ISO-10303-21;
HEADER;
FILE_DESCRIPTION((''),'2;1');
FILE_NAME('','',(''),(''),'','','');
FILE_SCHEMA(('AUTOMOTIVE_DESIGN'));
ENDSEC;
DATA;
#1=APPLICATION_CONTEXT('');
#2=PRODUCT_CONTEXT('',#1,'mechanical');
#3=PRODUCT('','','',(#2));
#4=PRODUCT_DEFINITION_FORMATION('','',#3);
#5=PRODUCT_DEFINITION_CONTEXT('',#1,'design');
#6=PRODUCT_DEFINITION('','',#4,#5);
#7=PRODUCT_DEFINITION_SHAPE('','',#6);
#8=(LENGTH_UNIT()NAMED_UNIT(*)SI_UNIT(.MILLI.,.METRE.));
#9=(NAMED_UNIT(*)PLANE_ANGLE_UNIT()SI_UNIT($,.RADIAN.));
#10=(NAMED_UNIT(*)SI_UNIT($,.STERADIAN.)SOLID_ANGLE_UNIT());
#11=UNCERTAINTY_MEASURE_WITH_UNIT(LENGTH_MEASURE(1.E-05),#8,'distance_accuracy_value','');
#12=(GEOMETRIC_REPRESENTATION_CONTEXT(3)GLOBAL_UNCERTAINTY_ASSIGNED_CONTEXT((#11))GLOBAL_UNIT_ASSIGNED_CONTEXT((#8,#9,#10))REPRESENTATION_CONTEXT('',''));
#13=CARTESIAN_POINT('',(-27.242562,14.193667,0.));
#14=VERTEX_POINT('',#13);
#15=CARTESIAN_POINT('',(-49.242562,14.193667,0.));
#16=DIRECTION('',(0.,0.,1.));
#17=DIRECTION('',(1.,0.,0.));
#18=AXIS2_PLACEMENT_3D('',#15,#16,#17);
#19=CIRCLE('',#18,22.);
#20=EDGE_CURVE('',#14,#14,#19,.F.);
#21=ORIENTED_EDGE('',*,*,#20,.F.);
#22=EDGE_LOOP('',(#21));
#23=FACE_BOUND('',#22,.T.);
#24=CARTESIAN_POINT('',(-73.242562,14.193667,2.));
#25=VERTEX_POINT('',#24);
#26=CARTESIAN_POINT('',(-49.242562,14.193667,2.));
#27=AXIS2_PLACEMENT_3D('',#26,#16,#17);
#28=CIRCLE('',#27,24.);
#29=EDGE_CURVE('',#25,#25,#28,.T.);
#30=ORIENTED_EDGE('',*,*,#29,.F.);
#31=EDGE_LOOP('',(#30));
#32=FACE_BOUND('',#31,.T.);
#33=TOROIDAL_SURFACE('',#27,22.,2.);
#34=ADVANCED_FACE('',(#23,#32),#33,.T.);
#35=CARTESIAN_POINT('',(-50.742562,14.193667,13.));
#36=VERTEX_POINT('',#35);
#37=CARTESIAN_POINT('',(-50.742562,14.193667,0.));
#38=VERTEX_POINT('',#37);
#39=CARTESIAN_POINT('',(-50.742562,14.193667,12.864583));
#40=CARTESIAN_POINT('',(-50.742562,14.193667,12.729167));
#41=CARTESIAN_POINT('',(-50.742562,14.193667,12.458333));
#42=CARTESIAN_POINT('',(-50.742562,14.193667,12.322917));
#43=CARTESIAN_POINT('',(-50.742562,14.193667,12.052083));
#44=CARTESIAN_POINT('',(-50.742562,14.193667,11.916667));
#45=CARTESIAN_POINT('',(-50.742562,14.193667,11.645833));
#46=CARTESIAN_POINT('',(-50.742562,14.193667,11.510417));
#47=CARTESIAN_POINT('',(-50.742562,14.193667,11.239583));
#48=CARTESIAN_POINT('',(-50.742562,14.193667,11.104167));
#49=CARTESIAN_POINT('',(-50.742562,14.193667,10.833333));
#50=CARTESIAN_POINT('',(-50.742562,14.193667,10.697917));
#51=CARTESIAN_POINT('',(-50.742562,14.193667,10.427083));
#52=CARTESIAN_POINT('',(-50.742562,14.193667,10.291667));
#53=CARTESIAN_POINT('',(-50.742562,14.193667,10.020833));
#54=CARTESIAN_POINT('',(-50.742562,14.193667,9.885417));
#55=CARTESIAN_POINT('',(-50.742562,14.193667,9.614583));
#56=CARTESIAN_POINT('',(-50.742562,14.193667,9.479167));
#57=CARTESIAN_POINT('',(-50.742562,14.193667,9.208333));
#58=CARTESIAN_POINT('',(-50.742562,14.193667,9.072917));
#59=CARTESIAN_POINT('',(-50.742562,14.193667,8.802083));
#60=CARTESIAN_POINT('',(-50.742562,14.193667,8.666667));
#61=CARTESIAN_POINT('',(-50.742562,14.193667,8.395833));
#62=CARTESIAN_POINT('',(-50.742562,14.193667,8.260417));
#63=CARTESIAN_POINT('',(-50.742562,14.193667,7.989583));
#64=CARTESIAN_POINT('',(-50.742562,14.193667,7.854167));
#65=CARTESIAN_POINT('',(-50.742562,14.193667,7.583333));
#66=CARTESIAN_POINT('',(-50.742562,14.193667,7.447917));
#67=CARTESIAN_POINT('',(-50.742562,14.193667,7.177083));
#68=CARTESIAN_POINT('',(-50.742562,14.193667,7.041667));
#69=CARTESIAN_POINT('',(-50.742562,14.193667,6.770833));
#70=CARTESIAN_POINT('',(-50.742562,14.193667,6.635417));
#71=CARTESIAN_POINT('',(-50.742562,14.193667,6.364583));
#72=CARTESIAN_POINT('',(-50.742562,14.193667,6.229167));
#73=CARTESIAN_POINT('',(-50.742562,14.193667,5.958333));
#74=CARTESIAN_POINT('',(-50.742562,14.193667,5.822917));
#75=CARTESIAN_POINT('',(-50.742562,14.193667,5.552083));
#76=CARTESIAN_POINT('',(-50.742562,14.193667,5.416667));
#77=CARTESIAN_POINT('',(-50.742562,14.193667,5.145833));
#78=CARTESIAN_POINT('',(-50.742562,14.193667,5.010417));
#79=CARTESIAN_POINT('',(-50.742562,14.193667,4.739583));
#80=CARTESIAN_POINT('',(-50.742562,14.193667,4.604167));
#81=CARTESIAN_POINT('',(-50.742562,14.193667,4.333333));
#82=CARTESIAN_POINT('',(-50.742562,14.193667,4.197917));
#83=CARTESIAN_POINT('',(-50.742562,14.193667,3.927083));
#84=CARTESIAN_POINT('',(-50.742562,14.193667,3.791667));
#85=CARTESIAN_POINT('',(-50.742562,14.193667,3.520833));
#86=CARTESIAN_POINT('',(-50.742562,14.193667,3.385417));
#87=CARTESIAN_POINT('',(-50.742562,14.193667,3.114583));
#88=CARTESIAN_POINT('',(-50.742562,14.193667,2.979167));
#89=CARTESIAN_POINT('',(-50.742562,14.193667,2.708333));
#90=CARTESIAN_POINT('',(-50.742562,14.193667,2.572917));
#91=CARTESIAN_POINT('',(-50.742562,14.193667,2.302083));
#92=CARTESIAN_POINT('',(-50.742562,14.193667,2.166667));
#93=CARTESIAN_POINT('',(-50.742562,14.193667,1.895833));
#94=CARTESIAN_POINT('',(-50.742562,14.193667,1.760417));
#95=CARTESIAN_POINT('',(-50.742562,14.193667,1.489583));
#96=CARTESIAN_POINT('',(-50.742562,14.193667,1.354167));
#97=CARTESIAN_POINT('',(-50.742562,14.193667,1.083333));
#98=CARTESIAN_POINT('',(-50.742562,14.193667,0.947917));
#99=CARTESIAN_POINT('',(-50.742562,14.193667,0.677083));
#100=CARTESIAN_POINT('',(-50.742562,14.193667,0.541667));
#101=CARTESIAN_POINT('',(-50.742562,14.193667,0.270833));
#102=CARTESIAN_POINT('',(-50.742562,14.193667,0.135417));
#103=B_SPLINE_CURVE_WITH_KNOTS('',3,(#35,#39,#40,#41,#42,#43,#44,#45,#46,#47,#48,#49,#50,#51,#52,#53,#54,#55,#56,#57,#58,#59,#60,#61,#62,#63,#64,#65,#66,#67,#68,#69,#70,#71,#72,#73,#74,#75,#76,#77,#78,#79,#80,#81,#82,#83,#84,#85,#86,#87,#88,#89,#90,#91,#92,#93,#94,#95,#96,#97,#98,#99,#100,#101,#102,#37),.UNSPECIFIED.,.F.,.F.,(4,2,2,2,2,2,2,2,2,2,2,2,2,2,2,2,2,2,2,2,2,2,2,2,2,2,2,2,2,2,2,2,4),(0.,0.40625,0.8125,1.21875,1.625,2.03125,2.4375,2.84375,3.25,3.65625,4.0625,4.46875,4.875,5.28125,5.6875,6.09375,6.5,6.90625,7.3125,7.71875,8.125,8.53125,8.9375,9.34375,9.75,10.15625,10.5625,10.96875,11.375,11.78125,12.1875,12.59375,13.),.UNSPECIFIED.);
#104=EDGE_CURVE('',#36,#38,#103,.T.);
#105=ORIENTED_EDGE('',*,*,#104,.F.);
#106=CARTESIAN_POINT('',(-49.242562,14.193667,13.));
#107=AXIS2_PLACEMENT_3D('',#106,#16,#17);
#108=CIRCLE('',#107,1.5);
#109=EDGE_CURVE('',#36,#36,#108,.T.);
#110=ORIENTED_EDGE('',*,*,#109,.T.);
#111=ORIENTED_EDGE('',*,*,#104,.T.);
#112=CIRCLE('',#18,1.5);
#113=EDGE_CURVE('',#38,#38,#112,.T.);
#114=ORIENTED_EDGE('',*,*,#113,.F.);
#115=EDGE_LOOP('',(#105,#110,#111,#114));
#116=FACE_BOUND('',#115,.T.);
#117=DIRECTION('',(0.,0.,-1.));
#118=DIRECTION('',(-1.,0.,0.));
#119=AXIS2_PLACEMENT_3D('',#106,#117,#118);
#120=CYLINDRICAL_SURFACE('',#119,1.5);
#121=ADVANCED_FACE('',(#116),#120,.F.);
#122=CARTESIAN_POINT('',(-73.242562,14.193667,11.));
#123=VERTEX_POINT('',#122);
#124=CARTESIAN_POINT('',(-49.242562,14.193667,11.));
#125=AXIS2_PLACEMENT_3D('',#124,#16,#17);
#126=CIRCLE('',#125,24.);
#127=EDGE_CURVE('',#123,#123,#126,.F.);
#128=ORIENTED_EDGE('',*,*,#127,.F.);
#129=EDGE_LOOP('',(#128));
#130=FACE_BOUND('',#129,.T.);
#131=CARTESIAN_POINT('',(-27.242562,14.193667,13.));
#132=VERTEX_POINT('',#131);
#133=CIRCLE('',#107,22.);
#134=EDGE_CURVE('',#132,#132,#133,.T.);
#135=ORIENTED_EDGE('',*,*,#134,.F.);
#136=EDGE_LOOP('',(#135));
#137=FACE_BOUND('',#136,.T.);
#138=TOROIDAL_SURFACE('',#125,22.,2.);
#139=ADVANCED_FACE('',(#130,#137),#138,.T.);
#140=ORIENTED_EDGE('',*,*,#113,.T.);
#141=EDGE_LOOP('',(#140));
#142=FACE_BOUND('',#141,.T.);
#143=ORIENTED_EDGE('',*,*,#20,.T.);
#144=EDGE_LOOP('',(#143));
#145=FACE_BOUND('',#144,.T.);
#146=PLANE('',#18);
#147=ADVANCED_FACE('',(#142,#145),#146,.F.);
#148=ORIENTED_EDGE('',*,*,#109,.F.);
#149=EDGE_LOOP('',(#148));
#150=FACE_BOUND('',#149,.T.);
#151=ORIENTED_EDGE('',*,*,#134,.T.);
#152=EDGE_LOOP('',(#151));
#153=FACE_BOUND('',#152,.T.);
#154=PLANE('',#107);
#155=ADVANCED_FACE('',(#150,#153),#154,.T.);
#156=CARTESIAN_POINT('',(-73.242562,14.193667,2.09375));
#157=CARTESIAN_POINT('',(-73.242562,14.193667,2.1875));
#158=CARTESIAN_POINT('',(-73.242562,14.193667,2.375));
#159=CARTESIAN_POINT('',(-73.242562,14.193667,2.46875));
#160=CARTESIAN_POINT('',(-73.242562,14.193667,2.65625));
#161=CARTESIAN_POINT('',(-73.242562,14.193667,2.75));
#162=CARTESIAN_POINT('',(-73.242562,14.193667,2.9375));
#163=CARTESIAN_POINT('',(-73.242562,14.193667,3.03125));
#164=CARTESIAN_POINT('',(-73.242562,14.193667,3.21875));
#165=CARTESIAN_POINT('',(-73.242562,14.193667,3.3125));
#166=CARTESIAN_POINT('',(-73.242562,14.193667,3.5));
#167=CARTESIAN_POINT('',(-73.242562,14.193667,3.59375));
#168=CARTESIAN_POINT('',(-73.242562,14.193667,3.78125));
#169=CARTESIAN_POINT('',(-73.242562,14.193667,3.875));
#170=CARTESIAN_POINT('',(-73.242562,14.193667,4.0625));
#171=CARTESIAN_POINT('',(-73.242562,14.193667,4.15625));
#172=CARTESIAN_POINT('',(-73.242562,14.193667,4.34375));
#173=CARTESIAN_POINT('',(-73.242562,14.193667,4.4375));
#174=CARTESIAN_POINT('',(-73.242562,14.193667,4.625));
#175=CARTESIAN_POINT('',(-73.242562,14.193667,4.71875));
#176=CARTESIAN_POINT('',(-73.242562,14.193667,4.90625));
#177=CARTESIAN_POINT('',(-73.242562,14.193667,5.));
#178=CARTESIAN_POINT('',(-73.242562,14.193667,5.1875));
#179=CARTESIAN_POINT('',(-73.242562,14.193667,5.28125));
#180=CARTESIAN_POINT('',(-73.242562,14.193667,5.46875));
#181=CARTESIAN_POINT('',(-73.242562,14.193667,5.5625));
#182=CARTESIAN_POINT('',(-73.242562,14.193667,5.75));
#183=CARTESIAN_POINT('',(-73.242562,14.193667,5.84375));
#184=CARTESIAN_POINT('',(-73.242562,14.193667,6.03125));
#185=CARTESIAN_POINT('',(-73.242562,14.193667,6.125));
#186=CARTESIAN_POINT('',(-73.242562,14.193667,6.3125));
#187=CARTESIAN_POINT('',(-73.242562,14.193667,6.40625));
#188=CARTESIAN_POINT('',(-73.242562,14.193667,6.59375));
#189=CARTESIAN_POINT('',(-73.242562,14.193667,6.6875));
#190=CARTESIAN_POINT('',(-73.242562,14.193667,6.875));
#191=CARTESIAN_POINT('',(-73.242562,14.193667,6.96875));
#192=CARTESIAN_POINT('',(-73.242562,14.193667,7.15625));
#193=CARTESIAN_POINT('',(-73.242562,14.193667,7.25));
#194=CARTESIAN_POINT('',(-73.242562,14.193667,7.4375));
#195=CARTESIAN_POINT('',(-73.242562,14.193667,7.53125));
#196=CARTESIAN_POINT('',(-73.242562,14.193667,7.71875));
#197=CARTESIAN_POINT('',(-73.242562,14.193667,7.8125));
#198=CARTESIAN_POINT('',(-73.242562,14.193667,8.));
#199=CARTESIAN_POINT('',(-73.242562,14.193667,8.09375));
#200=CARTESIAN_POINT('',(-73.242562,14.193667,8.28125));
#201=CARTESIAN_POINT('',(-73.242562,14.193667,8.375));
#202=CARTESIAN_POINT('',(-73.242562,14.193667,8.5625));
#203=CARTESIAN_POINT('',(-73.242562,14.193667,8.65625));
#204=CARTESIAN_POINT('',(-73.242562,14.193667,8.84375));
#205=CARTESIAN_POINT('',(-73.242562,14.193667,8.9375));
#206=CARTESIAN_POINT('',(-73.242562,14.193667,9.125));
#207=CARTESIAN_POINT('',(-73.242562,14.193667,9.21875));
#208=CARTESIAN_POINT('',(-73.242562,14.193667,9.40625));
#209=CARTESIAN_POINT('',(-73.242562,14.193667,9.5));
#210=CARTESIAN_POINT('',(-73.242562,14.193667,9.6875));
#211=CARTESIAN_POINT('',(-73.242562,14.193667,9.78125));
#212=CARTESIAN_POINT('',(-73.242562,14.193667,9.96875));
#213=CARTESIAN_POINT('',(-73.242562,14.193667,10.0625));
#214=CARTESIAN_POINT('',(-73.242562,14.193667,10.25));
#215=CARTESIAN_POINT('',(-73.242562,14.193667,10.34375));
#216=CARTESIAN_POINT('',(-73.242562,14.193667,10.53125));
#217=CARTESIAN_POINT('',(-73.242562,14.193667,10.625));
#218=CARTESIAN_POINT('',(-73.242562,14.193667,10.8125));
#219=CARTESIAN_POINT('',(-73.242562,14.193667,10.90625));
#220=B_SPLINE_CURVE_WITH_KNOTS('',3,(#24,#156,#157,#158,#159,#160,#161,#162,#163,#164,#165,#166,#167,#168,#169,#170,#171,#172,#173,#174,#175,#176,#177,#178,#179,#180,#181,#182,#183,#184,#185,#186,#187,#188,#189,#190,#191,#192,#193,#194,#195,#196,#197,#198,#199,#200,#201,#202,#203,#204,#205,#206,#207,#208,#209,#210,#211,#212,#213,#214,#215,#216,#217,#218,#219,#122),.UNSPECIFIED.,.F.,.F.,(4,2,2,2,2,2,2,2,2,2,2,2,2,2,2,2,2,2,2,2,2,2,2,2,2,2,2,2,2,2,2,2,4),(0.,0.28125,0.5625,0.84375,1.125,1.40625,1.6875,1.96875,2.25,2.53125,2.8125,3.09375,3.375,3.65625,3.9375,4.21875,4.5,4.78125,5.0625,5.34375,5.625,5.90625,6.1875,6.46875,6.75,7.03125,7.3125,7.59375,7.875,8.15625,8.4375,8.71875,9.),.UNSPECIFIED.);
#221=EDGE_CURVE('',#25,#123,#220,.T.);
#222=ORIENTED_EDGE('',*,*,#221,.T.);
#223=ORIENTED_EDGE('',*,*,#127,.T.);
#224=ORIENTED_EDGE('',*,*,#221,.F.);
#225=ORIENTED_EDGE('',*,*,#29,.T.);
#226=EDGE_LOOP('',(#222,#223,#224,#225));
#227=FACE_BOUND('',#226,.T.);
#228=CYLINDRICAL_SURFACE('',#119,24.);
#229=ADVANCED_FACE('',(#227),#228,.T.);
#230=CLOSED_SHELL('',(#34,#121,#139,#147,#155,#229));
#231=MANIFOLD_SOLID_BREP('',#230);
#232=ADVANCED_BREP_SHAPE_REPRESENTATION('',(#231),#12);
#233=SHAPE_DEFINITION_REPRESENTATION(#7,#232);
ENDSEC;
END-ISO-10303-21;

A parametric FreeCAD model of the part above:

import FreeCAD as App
import Part
import Sketcher
from FreeCAD import Vector
Q = App.Units.Quantity


def edges_at(feature, points):
    """Names of the edges that pass closest to the given points."""
    edges = feature.Shape.Edges
    near = lambda p: min(range(len(edges)), key=lambda i: edges[i].distToShape(Part.Vertex(*p))[0])
    return sorted({f"Edge{near(p) + 1}" for p in points})

doc = App.newDocument("Part")
body = doc.addObject("PartDesign::Body", "Body")

# Sketch on XY plane
sketch1 = body.newObject("Sketcher::SketchObject", "Sketch")
sketch1.AttachmentSupport = (doc.getObject("XY_Plane"), [""])
sketch1.MapMode = "FlatFace"
sketch1.addGeometry(Part.Circle(Vector(-49.2, 14.2, 0), Vector(0, 0, 1), 24), False)
sketch1.addGeometry(Part.Circle(Vector(-49.2, 14.2, 0), Vector(0, 0, 1), 1.5), False)
sketch1.addConstraint(Sketcher.Constraint("Coincident", 1, 3, 0, 3))
sketch1.addConstraint(Sketcher.Constraint("Diameter", 0, Q("48 mm")))
sketch1.addConstraint(Sketcher.Constraint("Diameter", 1, Q("3 mm")))
sketch1.addConstraint(Sketcher.Constraint("DistanceX", 0, 3, -1, 1, Q("49.242562 mm")))
sketch1.addConstraint(Sketcher.Constraint("DistanceY", -1, 1, 0, 3, Q("14.193667 mm")))
pad1 = body.newObject("PartDesign::Pad", "Pad")
pad1.Profile = sketch1
pad1.Length = 13
doc.recompute()

fillet = body.newObject("PartDesign::Fillet", "Fillet")
fillet.Base = (pad1, edges_at(pad1, [(-25.243, 14.194, 13)]))
fillet.Radius = 2
doc.recompute()

fillet2 = body.newObject("PartDesign::Fillet", "Fillet001")
fillet2.Base = (fillet, edges_at(fillet, [(-25.243, 14.194, 0)]))
fillet2.Radius = 2

doc.recompute()
